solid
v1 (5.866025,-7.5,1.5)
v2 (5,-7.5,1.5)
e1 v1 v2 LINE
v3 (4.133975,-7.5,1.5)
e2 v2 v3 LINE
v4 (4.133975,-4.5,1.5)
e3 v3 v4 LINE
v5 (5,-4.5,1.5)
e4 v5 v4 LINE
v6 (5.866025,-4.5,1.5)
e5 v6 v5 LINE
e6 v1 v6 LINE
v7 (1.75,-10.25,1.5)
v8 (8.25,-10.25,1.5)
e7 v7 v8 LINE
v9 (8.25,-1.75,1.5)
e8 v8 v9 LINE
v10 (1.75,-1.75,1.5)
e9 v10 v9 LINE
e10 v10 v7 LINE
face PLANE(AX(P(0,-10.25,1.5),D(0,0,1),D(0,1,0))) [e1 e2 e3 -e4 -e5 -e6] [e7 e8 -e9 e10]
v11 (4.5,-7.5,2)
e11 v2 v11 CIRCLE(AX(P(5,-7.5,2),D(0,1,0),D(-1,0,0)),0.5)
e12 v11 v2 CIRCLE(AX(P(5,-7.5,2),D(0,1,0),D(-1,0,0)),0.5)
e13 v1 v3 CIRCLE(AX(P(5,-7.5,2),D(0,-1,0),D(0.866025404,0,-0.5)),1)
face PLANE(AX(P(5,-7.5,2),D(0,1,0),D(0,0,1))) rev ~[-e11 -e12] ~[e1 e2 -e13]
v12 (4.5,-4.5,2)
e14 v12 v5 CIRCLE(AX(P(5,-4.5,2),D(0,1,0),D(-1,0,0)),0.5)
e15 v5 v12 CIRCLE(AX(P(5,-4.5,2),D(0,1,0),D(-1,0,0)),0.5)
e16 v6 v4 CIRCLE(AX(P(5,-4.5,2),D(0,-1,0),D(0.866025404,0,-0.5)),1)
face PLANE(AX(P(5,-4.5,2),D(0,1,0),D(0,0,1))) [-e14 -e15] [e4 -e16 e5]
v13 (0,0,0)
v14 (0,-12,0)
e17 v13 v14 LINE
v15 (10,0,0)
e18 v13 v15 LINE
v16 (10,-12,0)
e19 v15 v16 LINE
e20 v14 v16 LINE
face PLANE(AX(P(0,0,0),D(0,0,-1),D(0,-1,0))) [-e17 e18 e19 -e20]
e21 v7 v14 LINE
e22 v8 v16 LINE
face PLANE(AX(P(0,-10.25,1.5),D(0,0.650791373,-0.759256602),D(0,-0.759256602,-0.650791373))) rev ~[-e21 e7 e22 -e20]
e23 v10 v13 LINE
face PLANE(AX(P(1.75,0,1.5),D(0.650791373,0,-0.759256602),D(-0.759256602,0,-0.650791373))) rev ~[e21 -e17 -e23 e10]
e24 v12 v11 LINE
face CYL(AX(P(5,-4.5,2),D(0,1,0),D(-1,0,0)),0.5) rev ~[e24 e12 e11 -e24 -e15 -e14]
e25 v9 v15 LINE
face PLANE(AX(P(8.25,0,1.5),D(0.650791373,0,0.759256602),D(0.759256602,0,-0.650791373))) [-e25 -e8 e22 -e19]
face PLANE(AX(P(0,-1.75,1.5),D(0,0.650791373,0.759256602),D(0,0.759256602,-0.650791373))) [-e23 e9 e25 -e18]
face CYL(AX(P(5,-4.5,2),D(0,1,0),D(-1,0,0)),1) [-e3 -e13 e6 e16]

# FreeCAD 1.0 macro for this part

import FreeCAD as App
import Part
import Sketcher
from FreeCAD import Vector
Q = App.Units.Quantity


def add_polygon(sketch, points):
    """Adds a closed chain of lines whose ends are joined by coincident constraints."""
    first, n = sketch.GeometryCount, len(points)
    for a, b in zip(points, points[1:] + points[:1]):
        sketch.addGeometry(Part.LineSegment(App.Vector(*a, 0), App.Vector(*b, 0)), False)
    for i in range(n):
        sketch.addConstraint(Sketcher.Constraint("Coincident", first + i, 2, first + (i + 1) % n, 1))

doc = App.newDocument("Part")
body = doc.addObject("PartDesign::Body", "Body")

# Sketch on YZ plane
sketch1 = body.newObject("Sketcher::SketchObject", "Sketch")
sketch1.AttachmentSupport = (doc.getObject("YZ_Plane"), [""])
sketch1.MapMode = "FlatFace"
add_polygon(sketch1, [(-12, 0), (-10.2, 1.5), (-1.8, 1.5), (0, 0)])  # lines 0-3
sketch1.addConstraint([
    Sketcher.Constraint("Horizontal", 1),
    Sketcher.Constraint("Horizontal", 3),
    Sketcher.Constraint("Coincident", 2, 2, -1, 1),
    Sketcher.Constraint("Equal", 0, 2),
    Sketcher.Constraint("DistanceX", 3, 2, 3, 1, Q("12 mm")),
    Sketcher.Constraint("DistanceX", 1, 1, 1, 2, Q("8.5 mm")),
    Sketcher.Constraint("DistanceY", -1, 1, 0, 2, Q("1.5 mm")),
])
pad1 = body.newObject("PartDesign::Pad", "Pad")
pad1.Profile = sketch1
pad1.Length = 10

# Sketch on XZ plane
sketch2 = body.newObject("Sketcher::SketchObject", "Sketch001")
sketch2.AttachmentSupport = (doc.getObject("XZ_Plane"), [""])
sketch2.MapMode = "FlatFace"
add_polygon(sketch2, [(10, 0), (8.2, 1.5), (10, 1.5)])  # lines 0-2
add_polygon(sketch2, [(0, 1.5), (1.8, 1.5), (0, 0)])  # lines 3-5
sketch2.addConstraint([
    Sketcher.Constraint("Horizontal", 1),
    Sketcher.Constraint("Vertical", 2),
    Sketcher.Constraint("Horizontal", 3),
    Sketcher.Constraint("Vertical", 5),
    Sketcher.Constraint("Coincident", 4, 2, -1, 1),
    Sketcher.Constraint("PointOnObject", 2, 2, -1),
    Sketcher.Constraint("Horizontal", 1, 2, 3, 2),
    Sketcher.Constraint("Equal", 1, 3),
    Sketcher.Constraint("DistanceY", 2, 2, 2, 1, Q("1.5 mm")),
    Sketcher.Constraint("DistanceX", -1, 1, 1, 2, Q("10 mm")),
    Sketcher.Constraint("DistanceX", 1, 1, 1, 2, Q("1.75 mm")),
])
pocket1 = body.newObject("PartDesign::Pocket", "Pocket")
pocket1.Profile = sketch2
pocket1.Length = 12.6
pocket1.Reversed = True

# Sketch on XZ plane
sketch3 = body.newObject("Sketcher::SketchObject", "Sketch002")
sketch3.AttachmentSupport = (doc.getObject("XZ_Plane"), [""])
sketch3.MapMode = "FlatFace"
sketch3.AttachmentOffset = App.Placement(Vector(0, 0, 4.5), App.Rotation())
sketch3.addGeometry(Part.Circle(Vector(5, 2, 0), Vector(0, 0, 1), 1), False)
sketch3.addConstraint([
    Sketcher.Constraint("Diameter", 0, Q("2 mm")),
    Sketcher.Constraint("DistanceX", -1, 1, 0, 3, Q("5 mm")),
    Sketcher.Constraint("DistanceY", -1, 1, 0, 3, Q("2 mm")),
])
pad2 = body.newObject("PartDesign::Pad", "Pad001")
pad2.Profile = sketch3
pad2.Length = 3

# Sketch on XZ plane
sketch4 = body.newObject("Sketcher::SketchObject", "Sketch003")
sketch4.AttachmentSupport = (doc.getObject("XZ_Plane"), [""])
sketch4.MapMode = "FlatFace"
sketch4.AttachmentOffset = App.Placement(Vector(0, 0, 4.5), App.Rotation())
sketch4.addGeometry(Part.Circle(Vector(5, 2, 0), Vector(0, 0, 1), 0.5), False)
sketch4.addConstraint([
    Sketcher.Constraint("Diameter", 0, Q("1 mm")),
    Sketcher.Constraint("DistanceX", -1, 1, 0, 3, Q("5 mm")),
    Sketcher.Constraint("DistanceY", -1, 1, 0, 3, Q("2 mm")),
])
pocket2 = body.newObject("PartDesign::Pocket", "Pocket001")
pocket2.Profile = sketch4
pocket2.Length = 3
pocket2.Reversed = True

doc.recompute()
